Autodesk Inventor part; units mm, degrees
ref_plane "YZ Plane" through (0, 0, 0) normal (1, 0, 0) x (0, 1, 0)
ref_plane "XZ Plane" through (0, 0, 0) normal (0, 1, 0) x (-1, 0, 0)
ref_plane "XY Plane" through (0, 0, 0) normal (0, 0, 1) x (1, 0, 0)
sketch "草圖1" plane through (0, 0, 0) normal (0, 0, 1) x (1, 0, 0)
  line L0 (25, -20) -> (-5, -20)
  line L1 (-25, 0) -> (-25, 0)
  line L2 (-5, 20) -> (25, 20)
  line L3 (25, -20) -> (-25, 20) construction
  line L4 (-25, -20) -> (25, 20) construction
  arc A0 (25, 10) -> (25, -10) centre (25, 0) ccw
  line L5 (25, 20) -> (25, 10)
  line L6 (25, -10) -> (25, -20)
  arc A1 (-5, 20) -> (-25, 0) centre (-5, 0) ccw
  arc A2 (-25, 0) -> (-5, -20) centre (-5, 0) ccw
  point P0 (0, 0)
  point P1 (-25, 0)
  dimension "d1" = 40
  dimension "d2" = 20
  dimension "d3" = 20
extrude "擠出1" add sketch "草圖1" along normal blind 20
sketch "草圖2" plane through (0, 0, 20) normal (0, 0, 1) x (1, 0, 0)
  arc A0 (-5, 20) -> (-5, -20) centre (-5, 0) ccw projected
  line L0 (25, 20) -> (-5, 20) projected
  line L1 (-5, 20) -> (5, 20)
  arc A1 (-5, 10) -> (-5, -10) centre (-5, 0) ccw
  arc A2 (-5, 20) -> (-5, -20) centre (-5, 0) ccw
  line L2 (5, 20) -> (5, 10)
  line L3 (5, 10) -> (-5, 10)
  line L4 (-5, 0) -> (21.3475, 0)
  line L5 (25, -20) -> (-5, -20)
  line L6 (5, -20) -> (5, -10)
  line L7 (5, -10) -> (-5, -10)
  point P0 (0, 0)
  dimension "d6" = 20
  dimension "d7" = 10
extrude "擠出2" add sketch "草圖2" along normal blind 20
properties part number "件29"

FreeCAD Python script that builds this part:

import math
import FreeCAD as App
import Part
import Sketcher
from FreeCAD import Vector
Q = App.Units.Quantity

doc = App.newDocument("Part")
body = doc.addObject("PartDesign::Body", "Body")

# Sketch on XY plane
sketch1 = doc.addObject("Sketcher::SketchObject", "Sketch")
body.addObject(sketch1)
sketch1.AttachmentSupport = (doc.XY_Plane, [""])
sketch1.MapMode = "FlatFace"
sketch1.addGeometry([
    Part.LineSegment(Vector(-5, -20, 0), Vector(25, -20, 0)),  # 0
    Part.LineSegment(Vector(25, -20, 0), Vector(25, -10, 0)),  # 1
    Part.ArcOfCircle(Part.Circle(Vector(25, 0, 0), Vector(0, 0, 1), 10), math.radians(90), math.radians(270)),  # 2
    Part.LineSegment(Vector(25, 10, 0), Vector(25, 20, 0)),  # 3
    Part.LineSegment(Vector(25, 20, 0), Vector(-5, 20, 0)),  # 4
    Part.ArcOfCircle(Part.Circle(Vector(-5, 0, 0), Vector(0, 0, 1), 20), math.radians(90), math.radians(270)),  # 5
], False)
sketch1.addConstraint([
    Sketcher.Constraint("Coincident", 0, 2, 1, 1),
    Sketcher.Constraint("Coincident", 1, 2, 2, 2),
    Sketcher.Constraint("Coincident", 2, 1, 3, 1),
    Sketcher.Constraint("Coincident", 3, 2, 4, 1),
    Sketcher.Constraint("Tangent", 4, 2, 5, 1),
    Sketcher.Constraint("Tangent", 5, 2, 0, 1),
    Sketcher.Constraint("Horizontal", 0),
    Sketcher.Constraint("Vertical", 1),
    Sketcher.Constraint("Vertical", 3),
    Sketcher.Constraint("Horizontal", 4),
    Sketcher.Constraint("Symmetric", 1, 2, 2, 1, -1),
    Sketcher.Constraint("PointOnObject", 5, 3, -1),
    Sketcher.Constraint("Vertical", 2, 3, 0, 2),
    Sketcher.Constraint("Radius", 2, Q("10 mm")),
    Sketcher.Constraint("Radius", 5, Q("20 mm")),
    Sketcher.Constraint("DistanceX", 0, 1, 0, 2, Q("30 mm")),
    Sketcher.Constraint("DistanceX", -1, 1, 2, 3, Q("25 mm")),
])
pad1 = doc.addObject("PartDesign::Pad", "Pad")
body.addObject(pad1)
pad1.Profile = sketch1
pad1.Length = 20

# Sketch on XY plane
sketch2 = doc.addObject("Sketcher::SketchObject", "Sketch001")
body.addObject(sketch2)
sketch2.AttachmentSupport = (doc.XY_Plane, [""])
sketch2.MapMode = "FlatFace"
sketch2.AttachmentOffset = App.Placement(Vector(0, 0, 20), App.Rotation())
sketch2.addGeometry([
    Part.LineSegment(Vector(5, 20, 0), Vector(-5, 20, 0)),  # 0
    Part.ArcOfCircle(Part.Circle(Vector(-5, 0, 0), Vector(0, 0, 1), 20), math.radians(90), math.radians(270)),  # 1
    Part.LineSegment(Vector(-5, -20, 0), Vector(5, -20, 0)),  # 2
    Part.LineSegment(Vector(5, -20, 0), Vector(5, -10, 0)),  # 3
    Part.LineSegment(Vector(5, -10, 0), Vector(-5, -10, 0)),  # 4
    Part.ArcOfCircle(Part.Circle(Vector(-5, 0, 0), Vector(0, 0, 1), 10), math.radians(90), math.radians(270)),  # 5
    Part.LineSegment(Vector(-5, 10, 0), Vector(5, 10, 0)),  # 6
    Part.LineSegment(Vector(5, 10, 0), Vector(5, 20, 0)),  # 7
], False)
sketch2.addConstraint([
    Sketcher.Constraint("Tangent", 0, 2, 1, 1),
    Sketcher.Constraint("Tangent", 1, 2, 2, 1),
    Sketcher.Constraint("Coincident", 2, 2, 3, 1),
    Sketcher.Constraint("Coincident", 3, 2, 4, 1),
    Sketcher.Constraint("Tangent", 4, 2, 5, 2),
    Sketcher.Constraint("Tangent", 5, 1, 6, 1),
    Sketcher.Constraint("Coincident", 6, 2, 7, 1),
    Sketcher.Constraint("Coincident", 7, 2, 0, 1),
    Sketcher.Constraint("Horizontal", 0),
    Sketcher.Constraint("Horizontal", 2),
    Sketcher.Constraint("Vertical", 3),
    Sketcher.Constraint("Horizontal", 4),
    Sketcher.Constraint("Horizontal", 6),
    Sketcher.Constraint("Vertical", 7),
    Sketcher.Constraint("Coincident", 5, 3, 1, 3),
    Sketcher.Constraint("Symmetric", 0, 2, 2, 2, -1, 1),
    Sketcher.Constraint("Vertical", 3, 2, 6, 2),
    Sketcher.Constraint("Equal", 6, 3),
    Sketcher.Constraint("Radius", 1, Q("20 mm")),
    Sketcher.Constraint("Radius", 5, Q("10 mm")),
])
pad2 = doc.addObject("PartDesign::Pad", "Pad001")
body.addObject(pad2)
pad2.Profile = sketch2
pad2.Length = 20

doc.recompute()
